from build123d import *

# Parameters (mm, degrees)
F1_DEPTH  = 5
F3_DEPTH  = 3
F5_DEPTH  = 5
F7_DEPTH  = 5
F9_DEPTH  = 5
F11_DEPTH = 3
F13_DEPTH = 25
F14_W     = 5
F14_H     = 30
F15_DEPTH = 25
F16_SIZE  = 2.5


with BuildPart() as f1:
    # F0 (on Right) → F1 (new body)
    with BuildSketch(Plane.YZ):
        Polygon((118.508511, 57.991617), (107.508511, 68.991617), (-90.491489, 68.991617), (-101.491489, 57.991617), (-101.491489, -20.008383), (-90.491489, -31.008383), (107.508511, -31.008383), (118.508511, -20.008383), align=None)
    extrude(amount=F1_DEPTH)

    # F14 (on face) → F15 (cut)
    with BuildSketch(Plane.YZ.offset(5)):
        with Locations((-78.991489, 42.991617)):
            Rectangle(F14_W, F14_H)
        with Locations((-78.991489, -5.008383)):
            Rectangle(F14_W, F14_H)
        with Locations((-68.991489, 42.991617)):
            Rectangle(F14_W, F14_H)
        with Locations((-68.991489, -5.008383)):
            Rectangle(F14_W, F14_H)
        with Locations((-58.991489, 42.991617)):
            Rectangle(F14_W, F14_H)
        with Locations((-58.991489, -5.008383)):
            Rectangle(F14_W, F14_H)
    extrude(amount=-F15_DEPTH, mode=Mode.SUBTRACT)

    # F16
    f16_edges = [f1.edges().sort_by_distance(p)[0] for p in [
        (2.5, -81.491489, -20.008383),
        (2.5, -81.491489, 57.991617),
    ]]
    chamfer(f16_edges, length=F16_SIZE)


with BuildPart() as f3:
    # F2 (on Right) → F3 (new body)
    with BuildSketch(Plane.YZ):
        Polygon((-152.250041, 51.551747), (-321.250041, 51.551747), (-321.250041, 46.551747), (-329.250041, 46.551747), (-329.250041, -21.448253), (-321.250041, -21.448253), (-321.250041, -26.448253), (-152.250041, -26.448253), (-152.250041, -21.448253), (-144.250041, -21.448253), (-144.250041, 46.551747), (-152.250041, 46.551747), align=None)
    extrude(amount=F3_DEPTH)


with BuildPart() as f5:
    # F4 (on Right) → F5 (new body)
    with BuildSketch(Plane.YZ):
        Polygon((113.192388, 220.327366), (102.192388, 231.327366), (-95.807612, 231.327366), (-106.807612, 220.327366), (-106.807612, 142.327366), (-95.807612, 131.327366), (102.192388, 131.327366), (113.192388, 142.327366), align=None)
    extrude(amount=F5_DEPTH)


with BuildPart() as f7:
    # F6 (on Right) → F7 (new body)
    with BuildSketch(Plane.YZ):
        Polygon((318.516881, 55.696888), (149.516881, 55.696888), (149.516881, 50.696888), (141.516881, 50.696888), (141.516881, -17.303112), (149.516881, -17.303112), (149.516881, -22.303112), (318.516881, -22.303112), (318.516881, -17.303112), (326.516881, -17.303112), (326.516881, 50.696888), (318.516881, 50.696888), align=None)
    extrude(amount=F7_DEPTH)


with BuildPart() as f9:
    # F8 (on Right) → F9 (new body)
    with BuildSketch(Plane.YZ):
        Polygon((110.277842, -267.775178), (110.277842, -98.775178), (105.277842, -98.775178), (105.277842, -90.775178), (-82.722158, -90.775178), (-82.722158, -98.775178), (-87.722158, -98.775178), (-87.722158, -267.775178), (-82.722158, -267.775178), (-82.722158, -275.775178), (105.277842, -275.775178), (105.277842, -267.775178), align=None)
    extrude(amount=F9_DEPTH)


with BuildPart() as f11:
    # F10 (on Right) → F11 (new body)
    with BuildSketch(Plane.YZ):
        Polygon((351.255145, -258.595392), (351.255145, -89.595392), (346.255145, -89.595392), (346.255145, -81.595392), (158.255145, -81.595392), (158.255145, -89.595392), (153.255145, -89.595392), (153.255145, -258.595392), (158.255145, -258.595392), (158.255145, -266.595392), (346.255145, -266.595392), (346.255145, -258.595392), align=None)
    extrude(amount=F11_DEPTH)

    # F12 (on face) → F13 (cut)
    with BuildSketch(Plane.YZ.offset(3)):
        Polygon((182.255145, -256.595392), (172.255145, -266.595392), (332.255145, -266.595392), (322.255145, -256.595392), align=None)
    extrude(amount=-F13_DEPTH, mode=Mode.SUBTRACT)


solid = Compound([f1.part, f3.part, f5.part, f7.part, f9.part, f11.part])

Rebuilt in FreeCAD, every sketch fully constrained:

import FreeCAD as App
import Part
import Sketcher


def edges_at(feature, points):
    """Names of the edges that pass closest to the given points."""
    edges = feature.Shape.Edges
    near = lambda p: min(range(len(edges)), key=lambda i: edges[i].distToShape(Part.Vertex(*p))[0])
    return sorted({f"Edge{near(p) + 1}" for p in points})


def add_polygon(sketch, points):
    """Adds a closed chain of lines whose ends are joined by coincident constraints."""
    first, n = sketch.GeometryCount, len(points)
    for a, b in zip(points, points[1:] + points[:1]):
        sketch.addGeometry(Part.LineSegment(App.Vector(*a, 0), App.Vector(*b, 0)), False)
    for i in range(n):
        sketch.addConstraint(Sketcher.Constraint("Coincident", first + i, 2, first + (i + 1) % n, 1))

doc = App.newDocument("Part")
body = doc.addObject("PartDesign::Body", "Body")

# Sketch on YZ plane
sketch1 = body.newObject("Sketcher::SketchObject", "Sketch")
sketch1.AttachmentSupport = (doc.getObject("YZ_Plane"), [""])
sketch1.MapMode = "FlatFace"
add_polygon(sketch1, [(119, 58), (108, 69), (-90, 69), (-101, 58), (-101, -20), (-90, -31), (108, -31), (119, -20)])  # lines 0-7
sketch1.addConstraint(Sketcher.Constraint("Horizontal", 1))
sketch1.addConstraint(Sketcher.Constraint("Vertical", 3))
sketch1.addConstraint(Sketcher.Constraint("Horizontal", 5))
sketch1.addConstraint(Sketcher.Constraint("Vertical", 7))
sketch1.addConstraint(Sketcher.Constraint("Perpendicular", 0, 2))
sketch1.addConstraint(Sketcher.Constraint("Perpendicular", 2, 4))
sketch1.addConstraint(Sketcher.Constraint("Perpendicular", 4, 6))
sketch1.addConstraint(Sketcher.Constraint("Horizontal", 3, 2, 6, 2))
sketch1.addConstraint(Sketcher.Constraint("Horizontal", 2, 2, 7, 2))
sketch1.addConstraint(Sketcher.Constraint("Vertical", 1, 2, 4, 2))
sketch1.addConstraint(Sketcher.Constraint("Vertical", 0, 2, 5, 2))
sketch1.addConstraint(Sketcher.Constraint("DistanceX", 1, 2, 1, 1, 198.0))
sketch1.addConstraint(Sketcher.Constraint("DistanceY", 3, 2, 3, 1, 78.0))
sketch1.addConstraint(Sketcher.Constraint("DistanceX", 2, 2, 1, 2, 11.0))
sketch1.addConstraint(Sketcher.Constraint("DistanceX", -1, 1, 0, 2, 107.508511))
sketch1.addConstraint(Sketcher.Constraint("DistanceY", -1, 1, 0, 2, 68.991617))
pad1 = body.newObject("PartDesign::Pad", "Pad")
pad1.Profile = sketch1
pad1.Length = 5

# Sketch on YZ plane
sketch2 = body.newObject("Sketcher::SketchObject", "Sketch001")
sketch2.AttachmentSupport = (doc.getObject("YZ_Plane"), [""])
sketch2.MapMode = "FlatFace"
sketch2.AttachmentOffset = App.Placement(App.Vector(0, 0, 5), App.Rotation())
add_polygon(sketch2, [(-81, 58), (-81, 28), (-76, 28), (-76, 58)])  # lines 0-3
add_polygon(sketch2, [(-81, 10), (-81, -20), (-76, -20), (-76, 10)])  # lines 4-7
add_polygon(sketch2, [(-71, 58), (-71, 28), (-66, 28), (-66, 58)])  # lines 8-11
add_polygon(sketch2, [(-71, 10), (-71, -20), (-66, -20), (-66, 10)])  # lines 12-15
add_polygon(sketch2, [(-61, 58), (-61, 28), (-56, 28), (-56, 58)])  # lines 16-19
add_polygon(sketch2, [(-61, 10), (-61, -20), (-56, -20), (-56, 10)])  # lines 20-23
sketch2.addConstraint(Sketcher.Constraint("Vertical", 0))
sketch2.addConstraint(Sketcher.Constraint("Horizontal", 1))
sketch2.addConstraint(Sketcher.Constraint("Vertical", 2))
sketch2.addConstraint(Sketcher.Constraint("Horizontal", 3))
sketch2.addConstraint(Sketcher.Constraint("Vertical", 4))
sketch2.addConstraint(Sketcher.Constraint("Horizontal", 5))
sketch2.addConstraint(Sketcher.Constraint("Vertical", 6))
sketch2.addConstraint(Sketcher.Constraint("Horizontal", 7))
sketch2.addConstraint(Sketcher.Constraint("Vertical", 8))
sketch2.addConstraint(Sketcher.Constraint("Horizontal", 9))
sketch2.addConstraint(Sketcher.Constraint("Vertical", 10))
sketch2.addConstraint(Sketcher.Constraint("Horizontal", 11))
sketch2.addConstraint(Sketcher.Constraint("Vertical", 12))
sketch2.addConstraint(Sketcher.Constraint("Horizontal", 13))
sketch2.addConstraint(Sketcher.Constraint("Vertical", 14))
sketch2.addConstraint(Sketcher.Constraint("Horizontal", 15))
sketch2.addConstraint(Sketcher.Constraint("Vertical", 16))
sketch2.addConstraint(Sketcher.Constraint("Horizontal", 17))
sketch2.addConstraint(Sketcher.Constraint("Vertical", 18))
sketch2.addConstraint(Sketcher.Constraint("Horizontal", 19))
sketch2.addConstraint(Sketcher.Constraint("Vertical", 20))
sketch2.addConstraint(Sketcher.Constraint("Horizontal", 21))
sketch2.addConstraint(Sketcher.Constraint("Vertical", 22))
sketch2.addConstraint(Sketcher.Constraint("Horizontal", 23))
sketch2.addConstraint(Sketcher.Constraint("Horizontal", 1, 2, 8, 2))
sketch2.addConstraint(Sketcher.Constraint("Horizontal", 3, 2, 10, 2))
sketch2.addConstraint(Sketcher.Constraint("Horizontal", 5, 2, 12, 2))
sketch2.addConstraint(Sketcher.Constraint("Horizontal", 7, 2, 14, 2))
sketch2.addConstraint(Sketcher.Constraint("Horizontal", 9, 2, 16, 2))
sketch2.addConstraint(Sketcher.Constraint("Horizontal", 11, 2, 18, 2))
sketch2.addConstraint(Sketcher.Constraint("Horizontal", 13, 2, 20, 2))
sketch2.addConstraint(Sketcher.Constraint("Horizontal", 15, 2, 22, 2))
sketch2.addConstraint(Sketcher.Constraint("Vertical", 3, 2, 4, 2))
sketch2.addConstraint(Sketcher.Constraint("Vertical", 2, 2, 5, 2))
sketch2.addConstraint(Sketcher.Constraint("Vertical", 11, 2, 12, 2))
sketch2.addConstraint(Sketcher.Constraint("Vertical", 10, 2, 13, 2))
sketch2.addConstraint(Sketcher.Constraint("Vertical", 19, 2, 20, 2))
sketch2.addConstraint(Sketcher.Constraint("Vertical", 18, 2, 21, 2))
sketch2.addConstraint(Sketcher.Constraint("Equal", 7, 9))
sketch2.addConstraint(Sketcher.Constraint("Equal", 15, 17))
sketch2.addConstraint(Sketcher.Constraint("Equal", 2, 4))
sketch2.addConstraint(Sketcher.Constraint("DistanceX", 1, 1, 1, 2, 5.0))
sketch2.addConstraint(Sketcher.Constraint("DistanceY", 0, 2, 0, 1, 30.0))
sketch2.addConstraint(Sketcher.Constraint("DistanceY", 4, 2, 0, 2, 48.0))
sketch2.addConstraint(Sketcher.Constraint("DistanceX", 1, 2, 8, 2, 5.0))
sketch2.addConstraint(Sketcher.Constraint("DistanceX", 9, 2, 16, 2, 5.0))
sketch2.addConstraint(Sketcher.Constraint("DistanceX", 0, 2, -1, 1, 81.491489))
sketch2.addConstraint(Sketcher.Constraint("DistanceY", -1, 1, 0, 2, 27.991617))
pocket1 = body.newObject("PartDesign::Pocket", "Pocket")
pocket1.Profile = sketch2
pocket1.Length = 25
doc.recompute()

chamfer = body.newObject("PartDesign::Chamfer", "Chamfer")
chamfer.Base = (pocket1, edges_at(pocket1, [(2.5, -81.491, -20.008), (2.5, -81.491, 57.992)]))
chamfer.Size = 2.5
body2 = doc.addObject("PartDesign::Body", "Body001")

# Sketch on YZ plane
sketch3 = body2.newObject("Sketcher::SketchObject", "Sketch002")
sketch3.AttachmentSupport = (doc.getObject("YZ_Plane001"), [""])
sketch3.MapMode = "FlatFace"
add_polygon(sketch3, [(-152, 52), (-321, 52), (-321, 47), (-329, 47), (-329, -21), (-321, -21), (-321, -26), (-152, -26), (-152, -21), (-144, -21), (-144, 47), (-152, 47)])  # lines 0-11
sketch3.addConstraint(Sketcher.Constraint("Horizontal", 0))
sketch3.addConstraint(Sketcher.Constraint("Vertical", 1))
sketch3.addConstraint(Sketcher.Constraint("Horizontal", 2))
sketch3.addConstraint(Sketcher.Constraint("Vertical", 3))
sketch3.addConstraint(Sketcher.Constraint("Horizontal", 4))
sketch3.addConstraint(Sketcher.Constraint("Vertical", 5))
sketch3.addConstraint(Sketcher.Constraint("Horizontal", 6))
sketch3.addConstraint(Sketcher.Constraint("Vertical", 7))
sketch3.addConstraint(Sketcher.Constraint("Horizontal", 8))
sketch3.addConstraint(Sketcher.Constraint("Vertical", 9))
sketch3.addConstraint(Sketcher.Constraint("Horizontal", 10))
sketch3.addConstraint(Sketcher.Constraint("Vertical", 11))
sketch3.addConstraint(Sketcher.Constraint("Horizontal", 4, 2, 7, 2))
sketch3.addConstraint(Sketcher.Constraint("Horizontal", 2, 2, 9, 2))
sketch3.addConstraint(Sketcher.Constraint("Vertical", 1, 2, 4, 2))
sketch3.addConstraint(Sketcher.Constraint("Vertical", 7, 2, 10, 2))
sketch3.addConstraint(Sketcher.Constraint("Equal", 4, 8))
sketch3.addConstraint(Sketcher.Constraint("Equal", 1, 5))
sketch3.addConstraint(Sketcher.Constraint("DistanceX", 0, 2, 0, 1, 169.0))
sketch3.addConstraint(Sketcher.Constraint("DistanceX", 2, 2, 2, 1, 8.0))
sketch3.addConstraint(Sketcher.Constraint("DistanceY", 1, 2, 1, 1, 5.0))
sketch3.addConstraint(Sketcher.Constraint("DistanceY", 3, 2, 3, 1, 68.0))
sketch3.addConstraint(Sketcher.Constraint("DistanceX", 0, 2, -1, 1, 321.250041))
sketch3.addConstraint(Sketcher.Constraint("DistanceY", -1, 1, 0, 2, 51.551747))
pad2 = body2.newObject("PartDesign::Pad", "Pad001")
pad2.Profile = sketch3
pad2.Length = 3
body3 = doc.addObject("PartDesign::Body", "Body002")

# Sketch on YZ plane
sketch4 = body3.newObject("Sketcher::SketchObject", "Sketch003")
sketch4.AttachmentSupport = (doc.getObject("YZ_Plane002"), [""])
sketch4.MapMode = "FlatFace"
add_polygon(sketch4, [(113, 220), (102, 231), (-96, 231), (-107, 220), (-107, 142), (-96, 131), (102, 131), (113, 142)])  # lines 0-7
sketch4.addConstraint(Sketcher.Constraint("Horizontal", 1))
sketch4.addConstraint(Sketcher.Constraint("Vertical", 3))
sketch4.addConstraint(Sketcher.Constraint("Horizontal", 5))
sketch4.addConstraint(Sketcher.Constraint("Vertical", 7))
sketch4.addConstraint(Sketcher.Constraint("Perpendicular", 0, 2))
sketch4.addConstraint(Sketcher.Constraint("Perpendicular", 2, 4))
sketch4.addConstraint(Sketcher.Constraint("Perpendicular", 4, 6))
sketch4.addConstraint(Sketcher.Constraint("Horizontal", 3, 2, 6, 2))
sketch4.addConstraint(Sketcher.Constraint("Horizontal", 2, 2, 7, 2))
sketch4.addConstraint(Sketcher.Constraint("Vertical", 1, 2, 4, 2))
sketch4.addConstraint(Sketcher.Constraint("Vertical", 0, 2, 5, 2))
sketch4.addConstraint(Sketcher.Constraint("DistanceX", 1, 2, 1, 1, 198.0))
sketch4.addConstraint(Sketcher.Constraint("DistanceY", 3, 2, 3, 1, 78.0))
sketch4.addConstraint(Sketcher.Constraint("DistanceX", 2, 2, 1, 2, 11.0))
sketch4.addConstraint(Sketcher.Constraint("DistanceX", -1, 1, 0, 2, 102.192388))
sketch4.addConstraint(Sketcher.Constraint("DistanceY", -1, 1, 0, 2, 231.327366))
pad3 = body3.newObject("PartDesign::Pad", "Pad002")
pad3.Profile = sketch4
pad3.Length = 5
body4 = doc.addObject("PartDesign::Body", "Body003")

# Sketch on YZ plane
sketch5 = body4.newObject("Sketcher::SketchObject", "Sketch004")
sketch5.AttachmentSupport = (doc.getObject("YZ_Plane003"), [""])
sketch5.MapMode = "FlatFace"
add_polygon(sketch5, [(319, 56), (150, 56), (150, 51), (142, 51), (142, -17), (150, -17), (150, -22), (319, -22), (319, -17), (327, -17), (327, 51), (319, 51)])  # lines 0-11
sketch5.addConstraint(Sketcher.Constraint("Horizontal", 0))
sketch5.addConstraint(Sketcher.Constraint("Vertical", 1))
sketch5.addConstraint(Sketcher.Constraint("Horizontal", 2))
sketch5.addConstraint(Sketcher.Constraint("Vertical", 3))
sketch5.addConstraint(Sketcher.Constraint("Horizontal", 4))
sketch5.addConstraint(Sketcher.Constraint("Vertical", 5))
sketch5.addConstraint(Sketcher.Constraint("Horizontal", 6))
sketch5.addConstraint(Sketcher.Constraint("Vertical", 7))
sketch5.addConstraint(Sketcher.Constraint("Horizontal", 8))
sketch5.addConstraint(Sketcher.Constraint("Vertical", 9))
sketch5.addConstraint(Sketcher.Constraint("Horizontal", 10))
sketch5.addConstraint(Sketcher.Constraint("Vertical", 11))
sketch5.addConstraint(Sketcher.Constraint("Horizontal", 4, 2, 7, 2))
sketch5.addConstraint(Sketcher.Constraint("Horizontal", 2, 2, 9, 2))
sketch5.addConstraint(Sketcher.Constraint("Vertical", 1, 2, 4, 2))
sketch5.addConstraint(Sketcher.Constraint("Vertical", 7, 2, 10, 2))
sketch5.addConstraint(Sketcher.Constraint("Equal", 4, 8))
sketch5.addConstraint(Sketcher.Constraint("Equal", 1, 5))
sketch5.addConstraint(Sketcher.Constraint("DistanceX", 0, 2, 0, 1, 169.0))
sketch5.addConstraint(Sketcher.Constraint("DistanceX", 2, 2, 2, 1, 8.0))
sketch5.addConstraint(Sketcher.Constraint("DistanceY", 1, 2, 1, 1, 5.0))
sketch5.addConstraint(Sketcher.Constraint("DistanceY", 3, 2, 3, 1, 68.0))
sketch5.addConstraint(Sketcher.Constraint("DistanceX", -1, 1, 0, 2, 149.516881))
sketch5.addConstraint(Sketcher.Constraint("DistanceY", 3, 2, -1, 1, 17.303112))
pad4 = body4.newObject("PartDesign::Pad", "Pad003")
pad4.Profile = sketch5
pad4.Length = 5
body5 = doc.addObject("PartDesign::Body", "Body004")

# Sketch on YZ plane
sketch6 = body5.newObject("Sketcher::SketchObject", "Sketch005")
sketch6.AttachmentSupport = (doc.getObject("YZ_Plane004"), [""])
sketch6.MapMode = "FlatFace"
add_polygon(sketch6, [(110, -268), (110, -99), (105, -99), (105, -91), (-83, -91), (-83, -99), (-88, -99), (-88, -268), (-83, -268), (-83, -276), (105, -276), (105, -268)])  # lines 0-11
sketch6.addConstraint(Sketcher.Constraint("Vertical", 0))
sketch6.addConstraint(Sketcher.Constraint("Horizontal", 1))
sketch6.addConstraint(Sketcher.Constraint("Vertical", 2))
sketch6.addConstraint(Sketcher.Constraint("Horizontal", 3))
sketch6.addConstraint(Sketcher.Constraint("Vertical", 4))
sketch6.addConstraint(Sketcher.Constraint("Horizontal", 5))
sketch6.addConstraint(Sketcher.Constraint("Vertical", 6))
sketch6.addConstraint(Sketcher.Constraint("Horizontal", 7))
sketch6.addConstraint(Sketcher.Constraint("Vertical", 8))
sketch6.addConstraint(Sketcher.Constraint("Horizontal", 9))
sketch6.addConstraint(Sketcher.Constraint("Vertical", 10))
sketch6.addConstraint(Sketcher.Constraint("Horizontal", 11))
sketch6.addConstraint(Sketcher.Constraint("Horizontal", 1, 2, 4, 2))
sketch6.addConstraint(Sketcher.Constraint("Horizontal", 7, 2, 10, 2))
sketch6.addConstraint(Sketcher.Constraint("Vertical", 4, 2, 7, 2))
sketch6.addConstraint(Sketcher.Constraint("Vertical", 2, 2, 9, 2))
sketch6.addConstraint(Sketcher.Constraint("Equal", 1, 5))
sketch6.addConstraint(Sketcher.Constraint("Equal", 4, 8))
sketch6.addConstraint(Sketcher.Constraint("DistanceX", 1, 2, 1, 1, 5.0))
sketch6.addConstraint(Sketcher.Constraint("DistanceX", 3, 2, 3, 1, 188.0))
sketch6.addConstraint(Sketcher.Constraint("DistanceY", 0, 1, 0, 2, 169.0))
sketch6.addConstraint(Sketcher.Constraint("DistanceY", 2, 1, 2, 2, 8.0))
sketch6.addConstraint(Sketcher.Constraint("DistanceY", 6, 2, -1, 1, 267.775178))
sketch6.addConstraint(Sketcher.Constraint("DistanceX", -1, 1, 0, 2, 110.277842))
pad5 = body5.newObject("PartDesign::Pad", "Pad004")
pad5.Profile = sketch6
pad5.Length = 5
body6 = doc.addObject("PartDesign::Body", "Body005")

# Sketch on YZ plane
sketch7 = body6.newObject("Sketcher::SketchObject", "Sketch006")
sketch7.AttachmentSupport = (doc.getObject("YZ_Plane005"), [""])
sketch7.MapMode = "FlatFace"
add_polygon(sketch7, [(351, -259), (351, -90), (346, -90), (346, -82), (158, -82), (158, -90), (153, -90), (153, -259), (158, -259), (158, -267), (346, -267), (346, -259)])  # lines 0-11
sketch7.addConstraint(Sketcher.Constraint("Vertical", 0))
sketch7.addConstraint(Sketcher.Constraint("Horizontal", 1))
sketch7.addConstraint(Sketcher.Constraint("Vertical", 2))
sketch7.addConstraint(Sketcher.Constraint("Horizontal", 3))
sketch7.addConstraint(Sketcher.Constraint("Vertical", 4))
sketch7.addConstraint(Sketcher.Constraint("Horizontal", 5))
sketch7.addConstraint(Sketcher.Constraint("Vertical", 6))
sketch7.addConstraint(Sketcher.Constraint("Horizontal", 7))
sketch7.addConstraint(Sketcher.Constraint("Vertical", 8))
sketch7.addConstraint(Sketcher.Constraint("Horizontal", 9))
sketch7.addConstraint(Sketcher.Constraint("Vertical", 10))
sketch7.addConstraint(Sketcher.Constraint("Horizontal", 11))
sketch7.addConstraint(Sketcher.Constraint("Horizontal", 1, 2, 4, 2))
sketch7.addConstraint(Sketcher.Constraint("Horizontal", 7, 2, 10, 2))
sketch7.addConstraint(Sketcher.Constraint("Vertical", 4, 2, 7, 2))
sketch7.addConstraint(Sketcher.Constraint("Vertical", 2, 2, 9, 2))
sketch7.addConstraint(Sketcher.Constraint("Equal", 1, 5))
sketch7.addConstraint(Sketcher.Constraint("Equal", 4, 8))
sketch7.addConstraint(Sketcher.Constraint("DistanceX", 1, 2, 1, 1, 5.0))
sketch7.addConstraint(Sketcher.Constraint("DistanceX", 3, 2, 3, 1, 188.0))
sketch7.addConstraint(Sketcher.Constraint("DistanceY", 0, 1, 0, 2, 169.0))
sketch7.addConstraint(Sketcher.Constraint("DistanceY", 2, 1, 2, 2, 8.0))
sketch7.addConstraint(Sketcher.Constraint("DistanceY", 6, 2, -1, 1, 258.595392))
sketch7.addConstraint(Sketcher.Constraint("DistanceX", -1, 1, 0, 2, 351.255145))
pad6 = body6.newObject("PartDesign::Pad", "Pad005")
pad6.Profile = sketch7
pad6.Length = 3

# Sketch on YZ plane
sketch8 = body6.newObject("Sketcher::SketchObject", "Sketch007")
sketch8.AttachmentSupport = (doc.getObject("YZ_Plane005"), [""])
sketch8.MapMode = "FlatFace"
sketch8.AttachmentOffset = App.Placement(App.Vector(0, 0, 3), App.Rotation())
add_polygon(sketch8, [(182, -257), (172, -267), (332, -267), (322, -257)])  # lines 0-3
sketch8.addConstraint(Sketcher.Constraint("Horizontal", 1))
sketch8.addConstraint(Sketcher.Constraint("Horizontal", 3))
sketch8.addConstraint(Sketcher.Constraint("Perpendicular", 0, 2))
sketch8.addConstraint(Sketcher.Constraint("Equal", 0, 2))
sketch8.addConstraint(Sketcher.Constraint("DistanceX", 1, 1, 1, 2, 160.0))
sketch8.addConstraint(Sketcher.Constraint("DistanceX", 3, 2, 3, 1, 140.0))
sketch8.addConstraint(Sketcher.Constraint("DistanceY", 0, 2, -1, 1, 266.595392))
sketch8.addConstraint(Sketcher.Constraint("DistanceX", -1, 1, 0, 2, 172.255145))
pocket2 = body6.newObject("PartDesign::Pocket", "Pocket001")
pocket2.Profile = sketch8
pocket2.Length = 25

doc.recompute()
